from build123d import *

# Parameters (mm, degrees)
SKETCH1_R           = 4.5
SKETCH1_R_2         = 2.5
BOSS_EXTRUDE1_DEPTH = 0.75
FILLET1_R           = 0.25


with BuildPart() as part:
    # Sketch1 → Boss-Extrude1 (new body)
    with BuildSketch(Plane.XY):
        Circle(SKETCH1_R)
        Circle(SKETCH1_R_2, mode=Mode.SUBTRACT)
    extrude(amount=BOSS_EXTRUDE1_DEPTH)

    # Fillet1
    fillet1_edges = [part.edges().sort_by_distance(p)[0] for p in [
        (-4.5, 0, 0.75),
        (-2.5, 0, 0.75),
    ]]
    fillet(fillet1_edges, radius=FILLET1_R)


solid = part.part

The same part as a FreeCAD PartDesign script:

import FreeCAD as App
import Part
import Sketcher
from FreeCAD import Vector
Q = App.Units.Quantity


def edges_at(feature, points):
    """Names of the edges that pass closest to the given points."""
    edges = feature.Shape.Edges
    near = lambda p: min(range(len(edges)), key=lambda i: edges[i].distToShape(Part.Vertex(*p))[0])
    return sorted({f"Edge{near(p) + 1}" for p in points})

doc = App.newDocument("Part")
params = doc.addObject("Spreadsheet::Sheet", "Params")
for row, (alias, value) in enumerate([
    ("sketch1_diameter", "9 mm"),
    ("sketch1_diameter2", "5 mm"),
    ("pad1_length", "0.75 mm"),
    ("fillet_radius", "0.25 mm"),
], start=1):
    params.set(f"A{row}", alias)
    params.set(f"B{row}", "=" + value)
    params.setAlias(f"B{row}", alias)

body = doc.addObject("PartDesign::Body", "Body")

# Sketch on XY plane
sketch1 = doc.addObject("Sketcher::SketchObject", "Sketch")
body.addObject(sketch1)
sketch1.AttachmentSupport = (doc.XY_Plane, [""])
sketch1.MapMode = "FlatFace"
sketch1.addGeometry([
    Part.Circle(Vector(0, 0, 0), Vector(0, 0, 1), 4.5),
    Part.Circle(Vector(0, 0, 0), Vector(0, 0, 1), 2.5),
], False)
sketch1.addConstraint([
    Sketcher.Constraint("Coincident", 0, 3, -1, 1),
    Sketcher.Constraint("Coincident", 1, 3, -1, 1),
    Sketcher.Constraint("Diameter", 0, Q("9 mm")),
    Sketcher.Constraint("Diameter", 1, Q("5 mm")),
])
sketch1.setExpression("Constraints[2]", "Params.sketch1_diameter")
sketch1.setExpression("Constraints[3]", "Params.sketch1_diameter2")
pad1 = doc.addObject("PartDesign::Pad", "Pad")
body.addObject(pad1)
pad1.Profile = sketch1
pad1.setExpression("Length", "Params.pad1_length")
doc.recompute()

fillet = doc.addObject("PartDesign::Fillet", "Fillet")
body.addObject(fillet)
fillet.Base = (pad1, edges_at(pad1, [(-4.5, 0, 0.75), (-2.5, 0, 0.75)]))
fillet.setExpression("Radius", "Params.fillet_radius")

doc.recompute()
